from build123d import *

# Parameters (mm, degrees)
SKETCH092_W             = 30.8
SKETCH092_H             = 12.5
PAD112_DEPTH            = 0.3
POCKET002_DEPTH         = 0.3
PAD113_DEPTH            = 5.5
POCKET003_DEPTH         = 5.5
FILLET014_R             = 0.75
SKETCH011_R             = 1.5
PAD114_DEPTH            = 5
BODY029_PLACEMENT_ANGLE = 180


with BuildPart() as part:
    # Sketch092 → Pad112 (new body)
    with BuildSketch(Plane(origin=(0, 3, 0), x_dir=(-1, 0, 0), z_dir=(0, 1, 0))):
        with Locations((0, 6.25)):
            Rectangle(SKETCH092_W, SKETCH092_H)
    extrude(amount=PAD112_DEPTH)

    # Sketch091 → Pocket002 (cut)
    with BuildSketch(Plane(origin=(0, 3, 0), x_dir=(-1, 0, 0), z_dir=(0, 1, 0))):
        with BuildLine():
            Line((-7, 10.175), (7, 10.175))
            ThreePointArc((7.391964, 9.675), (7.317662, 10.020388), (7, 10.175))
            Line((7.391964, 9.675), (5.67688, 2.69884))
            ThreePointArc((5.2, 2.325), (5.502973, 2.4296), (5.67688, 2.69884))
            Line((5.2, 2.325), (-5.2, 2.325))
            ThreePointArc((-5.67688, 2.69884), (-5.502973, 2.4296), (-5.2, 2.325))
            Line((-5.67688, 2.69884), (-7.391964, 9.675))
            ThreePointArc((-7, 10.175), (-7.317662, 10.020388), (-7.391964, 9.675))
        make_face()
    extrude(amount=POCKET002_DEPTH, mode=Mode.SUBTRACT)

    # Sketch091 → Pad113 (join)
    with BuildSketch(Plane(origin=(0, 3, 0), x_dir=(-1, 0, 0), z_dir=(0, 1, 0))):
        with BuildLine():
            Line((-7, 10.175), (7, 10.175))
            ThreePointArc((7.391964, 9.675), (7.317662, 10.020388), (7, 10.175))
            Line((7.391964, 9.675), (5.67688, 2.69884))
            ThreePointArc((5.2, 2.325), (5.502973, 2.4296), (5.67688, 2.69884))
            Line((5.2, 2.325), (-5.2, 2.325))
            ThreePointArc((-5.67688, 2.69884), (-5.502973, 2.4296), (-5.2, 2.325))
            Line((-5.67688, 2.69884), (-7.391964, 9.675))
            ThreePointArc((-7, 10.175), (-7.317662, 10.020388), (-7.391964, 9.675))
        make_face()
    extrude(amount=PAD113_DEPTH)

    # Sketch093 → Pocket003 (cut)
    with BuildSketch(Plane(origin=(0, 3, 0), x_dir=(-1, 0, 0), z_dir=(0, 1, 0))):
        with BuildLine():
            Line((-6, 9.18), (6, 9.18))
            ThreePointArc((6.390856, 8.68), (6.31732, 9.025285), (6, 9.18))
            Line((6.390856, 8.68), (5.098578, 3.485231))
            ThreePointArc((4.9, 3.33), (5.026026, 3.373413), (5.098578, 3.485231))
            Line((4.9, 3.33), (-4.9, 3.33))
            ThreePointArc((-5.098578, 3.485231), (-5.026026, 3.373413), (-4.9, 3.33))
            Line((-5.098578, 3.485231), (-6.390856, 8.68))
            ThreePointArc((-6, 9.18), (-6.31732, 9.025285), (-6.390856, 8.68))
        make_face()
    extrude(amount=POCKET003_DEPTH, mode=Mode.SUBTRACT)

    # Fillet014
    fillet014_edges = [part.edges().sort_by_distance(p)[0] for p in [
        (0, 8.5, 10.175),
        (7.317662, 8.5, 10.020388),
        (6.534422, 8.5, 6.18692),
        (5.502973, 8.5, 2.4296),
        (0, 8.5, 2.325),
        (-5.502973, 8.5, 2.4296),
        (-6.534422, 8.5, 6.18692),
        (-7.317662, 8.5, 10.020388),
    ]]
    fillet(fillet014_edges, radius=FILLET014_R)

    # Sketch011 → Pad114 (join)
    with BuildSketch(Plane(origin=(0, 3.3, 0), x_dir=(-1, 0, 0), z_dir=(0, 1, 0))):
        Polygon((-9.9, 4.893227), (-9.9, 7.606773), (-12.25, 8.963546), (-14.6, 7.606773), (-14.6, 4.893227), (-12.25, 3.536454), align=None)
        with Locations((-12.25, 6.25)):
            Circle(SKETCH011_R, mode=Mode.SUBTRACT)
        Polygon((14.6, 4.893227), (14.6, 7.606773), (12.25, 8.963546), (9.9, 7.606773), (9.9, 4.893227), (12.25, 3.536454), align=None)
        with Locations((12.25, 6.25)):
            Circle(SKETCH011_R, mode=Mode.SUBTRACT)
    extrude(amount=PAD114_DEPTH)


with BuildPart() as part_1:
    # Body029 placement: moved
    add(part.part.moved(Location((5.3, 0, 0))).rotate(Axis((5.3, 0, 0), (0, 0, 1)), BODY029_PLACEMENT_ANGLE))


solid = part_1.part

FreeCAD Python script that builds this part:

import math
import FreeCAD as App
import Part
import Sketcher
from FreeCAD import Vector
Q = App.Units.Quantity


def edges_at(feature, points):
    """Names of the edges that pass closest to the given points."""
    edges = feature.Shape.Edges
    near = lambda p: min(range(len(edges)), key=lambda i: edges[i].distToShape(Part.Vertex(*p))[0])
    return sorted({f"Edge{near(p) + 1}" for p in points})


def add_polygon(sketch, points):
    """Adds a closed chain of lines whose ends are joined by coincident constraints."""
    first, n = sketch.GeometryCount, len(points)
    for a, b in zip(points, points[1:] + points[:1]):
        sketch.addGeometry(Part.LineSegment(App.Vector(*a, 0), App.Vector(*b, 0)), False)
    for i in range(n):
        sketch.addConstraint(Sketcher.Constraint("Coincident", first + i, 2, first + (i + 1) % n, 1))

doc = App.newDocument("Part")
params = doc.addObject("Spreadsheet::Sheet", "Params")
for row, (alias, value) in enumerate([
    ("sketch1_width", "30.8 mm"),
    ("sketch1_height", "12.5 mm"),
    ("pad1_length", "0.3 mm"),
    ("sketch2_width", "14 mm"),
    ("sketch2_width2", "10.4 mm"),
    ("pocket1_length", "0.3 mm"),
    ("sketch3_width", "14 mm"),
    ("sketch3_width2", "10.4 mm"),
    ("pad2_length", "5.5 mm"),
    ("sketch4_width", "12 mm"),
    ("sketch4_width2", "9.8 mm"),
    ("pocket2_length", "5.5 mm"),
    ("fillet_radius", "0.75 mm"),
    ("sketch5_diameter", "3 mm"),
    ("pad3_length", "5 mm"),
], start=1):
    params.set(f"A{row}", alias)
    params.set(f"B{row}", "=" + value)
    params.setAlias(f"B{row}", alias)

body = doc.addObject("PartDesign::Body", "Body")

# Sketch on XZ plane
sketch1 = body.newObject("Sketcher::SketchObject", "Sketch")
sketch1.AttachmentSupport = (doc.getObject("XZ_Plane"), [""])
sketch1.MapMode = "FlatFace"
sketch1.AttachmentOffset = App.Placement(Vector(0, 0, -3), App.Rotation())
add_polygon(sketch1, [(15.4, 12.5), (15.4, 0), (-15.4, 0), (-15.4, 12.5)])  # lines 0-3
sketch1.addConstraint([
    Sketcher.Constraint("Vertical", 0),
    Sketcher.Constraint("Horizontal", 1),
    Sketcher.Constraint("Vertical", 2),
    Sketcher.Constraint("Horizontal", 3),
    Sketcher.Constraint("Symmetric", 0, 2, 1, 2, -1, 1),
    Sketcher.Constraint("DistanceX", 1, 2, 1, 1, 30.8),
    Sketcher.Constraint("DistanceY", 0, 2, 0, 1, 12.5),
])
sketch1.setExpression("Constraints[9]", "Params.sketch1_width")
sketch1.setExpression("Constraints[10]", "Params.sketch1_height")
pad1 = body.newObject("PartDesign::Pad", "Pad")
pad1.Profile = sketch1
pad1.setExpression("Length", "Params.pad1_length")
pad1.Reversed = True

# Sketch on XZ plane
sketch2 = body.newObject("Sketcher::SketchObject", "Sketch001")
sketch2.AttachmentSupport = (doc.getObject("XZ_Plane"), [""])
sketch2.MapMode = "FlatFace"
sketch2.AttachmentOffset = App.Placement(Vector(0, 0, -3), App.Rotation())
sketch2.addGeometry([
    Part.LineSegment(Vector(-7, 10.175, 0), Vector(7, 10.175, 0)),  # 0
    Part.ArcOfCircle(Part.Circle(Vector(7, 9.771365, 0), Vector(0, 0, 1), 0.403635), math.radians(-13.812271), math.radians(90.000053)),  # 1
    Part.LineSegment(Vector(7.391964, 9.675, 0), Vector(5.67688, 2.69884, 0)),  # 2
    Part.ArcOfCircle(Part.Circle(Vector(5.199999, 2.816081, 0), Vector(0, 0, 1), 0.491081), math.radians(-89.999935), math.radians(-13.812221)),  # 3
    Part.LineSegment(Vector(5.2, 2.325, 0), Vector(-5.2, 2.325, 0)),  # 4
    Part.ArcOfCircle(Part.Circle(Vector(-5.199999, 2.816081, 0), Vector(0, 0, 1), 0.491081), math.radians(-166.187779), math.radians(-90.000065)),  # 5
    Part.LineSegment(Vector(-5.67688, 2.69884, 0), Vector(-7.391964, 9.675, 0)),  # 6
    Part.ArcOfCircle(Part.Circle(Vector(-7, 9.771365, 0), Vector(0, 0, 1), 0.403635), math.radians(89.999947), math.radians(193.812271)),  # 7
], False)
sketch2.addConstraint([
    Sketcher.Constraint("Tangent", 0, 2, 1, 2),
    Sketcher.Constraint("Tangent", 1, 1, 2, 1),
    Sketcher.Constraint("Tangent", 2, 2, 3, 2),
    Sketcher.Constraint("Tangent", 3, 1, 4, 1),
    Sketcher.Constraint("Tangent", 4, 2, 5, 2),
    Sketcher.Constraint("Tangent", 5, 1, 6, 1),
    Sketcher.Constraint("Tangent", 6, 2, 7, 2),
    Sketcher.Constraint("Tangent", 7, 1, 0, 1),
    Sketcher.Constraint("Horizontal", 0),
    Sketcher.Constraint("Horizontal", 4),
    Sketcher.Constraint("Equal", 3, 5),
    Sketcher.Constraint("Equal", 1, 7),
    Sketcher.Constraint("Symmetric", 2, 2, 5, 1, -2),
    Sketcher.Constraint("DistanceX", 0, 1, 0, 2, 14.0),
    Sketcher.Constraint("DistanceX", 4, 2, 4, 1, 10.4),
    Sketcher.Constraint("DistanceY", 1, 1, 0, 2, 0.5),
    Sketcher.Constraint("Radius", 3, 0.491081),
    Sketcher.Constraint("DistanceY", 3, 1, 1, 1, 7.35),
    Sketcher.Constraint("DistanceY", -1, 1, 0, 2, 10.175),
])
sketch2.setExpression("Constraints[13]", "Params.sketch2_width")
sketch2.setExpression("Constraints[14]", "Params.sketch2_width2")
pocket1 = body.newObject("PartDesign::Pocket", "Pocket")
pocket1.Profile = sketch2
pocket1.setExpression("Length", "Params.pocket1_length")

# Sketch on XZ plane
sketch3 = body.newObject("Sketcher::SketchObject", "Sketch002")
sketch3.AttachmentSupport = (doc.getObject("XZ_Plane"), [""])
sketch3.MapMode = "FlatFace"
sketch3.AttachmentOffset = App.Placement(Vector(0, 0, -3), App.Rotation())
sketch3.addGeometry([
    Part.LineSegment(Vector(-7, 10.175, 0), Vector(7, 10.175, 0)),  # 0
    Part.ArcOfCircle(Part.Circle(Vector(7, 9.771365, 0), Vector(0, 0, 1), 0.403635), math.radians(-13.812271), math.radians(90.000053)),  # 1
    Part.LineSegment(Vector(7.391964, 9.675, 0), Vector(5.67688, 2.69884, 0)),  # 2
    Part.ArcOfCircle(Part.Circle(Vector(5.199999, 2.816081, 0), Vector(0, 0, 1), 0.491081), math.radians(-89.999935), math.radians(-13.812221)),  # 3
    Part.LineSegment(Vector(5.2, 2.325, 0), Vector(-5.2, 2.325, 0)),  # 4
    Part.ArcOfCircle(Part.Circle(Vector(-5.199999, 2.816081, 0), Vector(0, 0, 1), 0.491081), math.radians(-166.187779), math.radians(-90.000065)),  # 5
    Part.LineSegment(Vector(-5.67688, 2.69884, 0), Vector(-7.391964, 9.675, 0)),  # 6
    Part.ArcOfCircle(Part.Circle(Vector(-7, 9.771365, 0), Vector(0, 0, 1), 0.403635), math.radians(89.999947), math.radians(193.812271)),  # 7
], False)
sketch3.addConstraint([
    Sketcher.Constraint("Tangent", 0, 2, 1, 2),
    Sketcher.Constraint("Tangent", 1, 1, 2, 1),
    Sketcher.Constraint("Tangent", 2, 2, 3, 2),
    Sketcher.Constraint("Tangent", 3, 1, 4, 1),
    Sketcher.Constraint("Tangent", 4, 2, 5, 2),
    Sketcher.Constraint("Tangent", 5, 1, 6, 1),
    Sketcher.Constraint("Tangent", 6, 2, 7, 2),
    Sketcher.Constraint("Tangent", 7, 1, 0, 1),
    Sketcher.Constraint("Horizontal", 0),
    Sketcher.Constraint("Horizontal", 4),
    Sketcher.Constraint("Equal", 3, 5),
    Sketcher.Constraint("Equal", 1, 7),
    Sketcher.Constraint("Symmetric", 2, 2, 5, 1, -2),
    Sketcher.Constraint("DistanceX", 0, 1, 0, 2, 14.0),
    Sketcher.Constraint("DistanceX", 4, 2, 4, 1, 10.4),
    Sketcher.Constraint("DistanceY", 1, 1, 0, 2, 0.5),
    Sketcher.Constraint("Radius", 3, 0.491081),
    Sketcher.Constraint("DistanceY", 3, 1, 1, 1, 7.35),
    Sketcher.Constraint("DistanceY", -1, 1, 0, 2, 10.175),
])
sketch3.setExpression("Constraints[13]", "Params.sketch3_width")
sketch3.setExpression("Constraints[14]", "Params.sketch3_width2")
pad2 = body.newObject("PartDesign::Pad", "Pad001")
pad2.Profile = sketch3
pad2.setExpression("Length", "Params.pad2_length")
pad2.Reversed = True

# Sketch on XZ plane
sketch4 = body.newObject("Sketcher::SketchObject", "Sketch003")
sketch4.AttachmentSupport = (doc.getObject("XZ_Plane"), [""])
sketch4.MapMode = "FlatFace"
sketch4.AttachmentOffset = App.Placement(Vector(0, 0, -3), App.Rotation())
sketch4.addGeometry([
    Part.LineSegment(Vector(-6, 9.18, 0), Vector(6, 9.18, 0)),  # 0
    Part.ArcOfCircle(Part.Circle(Vector(6, 8.777232, 0), Vector(0, 0, 1), 0.402768), math.radians(-13.969697), math.radians(90.00003)),  # 1
    Part.LineSegment(Vector(6.390856, 8.68, 0), Vector(5.098578, 3.485231, 0)),  # 2
    Part.ArcOfCircle(Part.Circle(Vector(4.9, 3.53463, 0), Vector(0, 0, 1), 0.20463), math.radians(-90.000047), math.radians(-13.96955)),  # 3
    Part.LineSegment(Vector(4.9, 3.33, 0), Vector(-4.9, 3.33, 0)),  # 4
    Part.ArcOfCircle(Part.Circle(Vector(-4.9, 3.53463, 0), Vector(0, 0, 1), 0.20463), math.radians(-166.03045), math.radians(-89.999953)),  # 5
    Part.LineSegment(Vector(-5.098578, 3.485231, 0), Vector(-6.390856, 8.68, 0)),  # 6
    Part.ArcOfCircle(Part.Circle(Vector(-6, 8.777232, 0), Vector(0, 0, 1), 0.402768), math.radians(89.99997), math.radians(193.969697)),  # 7
], False)
sketch4.addConstraint([
    Sketcher.Constraint("Tangent", 0, 2, 1, 2),
    Sketcher.Constraint("Tangent", 1, 1, 2, 1),
    Sketcher.Constraint("Tangent", 2, 2, 3, 2),
    Sketcher.Constraint("Tangent", 3, 1, 4, 1),
    Sketcher.Constraint("Tangent", 4, 2, 5, 2),
    Sketcher.Constraint("Tangent", 5, 1, 6, 1),
    Sketcher.Constraint("Tangent", 6, 2, 7, 2),
    Sketcher.Constraint("Tangent", 7, 1, 0, 1),
    Sketcher.Constraint("Horizontal", 0),
    Sketcher.Constraint("Horizontal", 4),
    Sketcher.Constraint("Equal", 3, 5),
    Sketcher.Constraint("Equal", 1, 7),
    Sketcher.Constraint("Symmetric", 2, 2, 5, 1, -2),
    Sketcher.Constraint("DistanceX", 0, 1, 0, 2, 12.0),
    Sketcher.Constraint("DistanceX", 4, 2, 4, 1, 9.8),
    Sketcher.Constraint("DistanceY", 1, 1, 0, 2, 0.5),
    Sketcher.Constraint("DistanceY", -1, 1, 0, 2, 9.18),
    Sketcher.Constraint("DistanceY", -1, 1, 3, 1, 3.33),
    Sketcher.Constraint("Radius", 1, 0.402768),
])
sketch4.setExpression("Constraints[13]", "Params.sketch4_width")
sketch4.setExpression("Constraints[14]", "Params.sketch4_width2")
pocket2 = body.newObject("PartDesign::Pocket", "Pocket001")
pocket2.Profile = sketch4
pocket2.setExpression("Length", "Params.pocket2_length")
doc.recompute()

fillet = body.newObject("PartDesign::Fillet", "Fillet")
fillet.Base = (pocket2, edges_at(pocket2, [
    (0, 8.5, 10.175),
    (7.318, 8.5, 10.02),
    (6.534, 8.5, 6.187),
    (5.503, 8.5, 2.43),
    (0, 8.5, 2.325),
    (-5.503, 8.5, 2.43),
    (-6.534, 8.5, 6.187),
    (-7.318, 8.5, 10.02),
]))
fillet.setExpression("Radius", "Params.fillet_radius")

# Sketch on XZ plane
sketch5 = body.newObject("Sketcher::SketchObject", "Sketch004")
sketch5.AttachmentSupport = (doc.getObject("XZ_Plane"), [""])
sketch5.MapMode = "FlatFace"
sketch5.AttachmentOffset = App.Placement(Vector(0, 0, -3.3), App.Rotation())
add_polygon(sketch5, [(9.9, 4.893227), (9.9, 7.606773), (12.25, 8.963546), (14.6, 7.606773), (14.6, 4.893227), (12.25, 3.536454)])  # lines 0-5
sketch5.addGeometry(Part.Circle(Vector(12.25, 6.25, 0), Vector(0, 0, 1), 1.5), False)  # 6
add_polygon(sketch5, [(-14.6, 4.893227), (-14.6, 7.606773), (-12.25, 8.963546), (-9.9, 7.606773), (-9.9, 4.893227), (-12.25, 3.536454)])  # lines 7-12
sketch5.addGeometry(Part.Circle(Vector(-12.25, 6.25, 0), Vector(0, 0, 1), 1.5), False)  # 13
sketch5.addConstraint([
    Sketcher.Constraint("Vertical", 0),
    Sketcher.Constraint("Vertical", 3),
    Sketcher.Constraint("Vertical", 7),
    Sketcher.Constraint("Vertical", 10),
    Sketcher.Constraint("Equal", 6, 13),
    Sketcher.Constraint("Symmetric", 6, 3, 13, 3, -2),
    Sketcher.Constraint("Symmetric", 2, 2, 7, 2, -2),
    Sketcher.Constraint("Symmetric", 1, 2, 8, 2, -2),
    Sketcher.Constraint("Symmetric", 0, 2, 9, 2, -2),
    Sketcher.Constraint("Symmetric", 4, 2, 11, 2, -2),
    Sketcher.Constraint("Parallel", 1, 4),
    Sketcher.Constraint("Parallel", 2, 5),
    Sketcher.Constraint("Parallel", 4, 8),
    Sketcher.Constraint("Parallel", 8, 11),
    Sketcher.Constraint("Parallel", 9, 12),
    Sketcher.Constraint("Horizontal", 0, 2, 2, 2),
    Sketcher.Constraint("Horizontal", 3, 2, 5, 2),
    Sketcher.Constraint("Vertical", 6, 3, 1, 2),
    Sketcher.Constraint("Diameter", 6, 3.0),
    Sketcher.Constraint("Angle", 1, Q("29.999998 deg")),
    Sketcher.Constraint("DistanceX", -1, 1, 0, 2, 9.9),
    Sketcher.Constraint("DistanceX", -1, 1, 2, 2, 14.6),
    Sketcher.Constraint("DistanceY", -1, 1, 6, 3, 6.25),
    Sketcher.Constraint("DistanceY", 0, 1, 0, 2, 2.713546),
    Sketcher.Constraint("DistanceY", -1, 1, 0, 2, 7.606773),
])
sketch5.setExpression("Constraints[30]", "Params.sketch5_diameter")
pad3 = body.newObject("PartDesign::Pad", "Pad002")
pad3.Profile = sketch5
pad3.setExpression("Length", "Params.pad3_length")
pad3.Reversed = True
body2 = doc.addObject("PartDesign::Body", "Body001")
doc.recompute()

body.Placement = App.Placement(Vector(5.3, 0, 0), App.Rotation(Vector(0, 0, 1), 180))
boolean = body2.newObject("PartDesign::Boolean", "Boolean")
boolean.Type = "Fuse"
boolean.addObjects([body])

doc.recompute()
